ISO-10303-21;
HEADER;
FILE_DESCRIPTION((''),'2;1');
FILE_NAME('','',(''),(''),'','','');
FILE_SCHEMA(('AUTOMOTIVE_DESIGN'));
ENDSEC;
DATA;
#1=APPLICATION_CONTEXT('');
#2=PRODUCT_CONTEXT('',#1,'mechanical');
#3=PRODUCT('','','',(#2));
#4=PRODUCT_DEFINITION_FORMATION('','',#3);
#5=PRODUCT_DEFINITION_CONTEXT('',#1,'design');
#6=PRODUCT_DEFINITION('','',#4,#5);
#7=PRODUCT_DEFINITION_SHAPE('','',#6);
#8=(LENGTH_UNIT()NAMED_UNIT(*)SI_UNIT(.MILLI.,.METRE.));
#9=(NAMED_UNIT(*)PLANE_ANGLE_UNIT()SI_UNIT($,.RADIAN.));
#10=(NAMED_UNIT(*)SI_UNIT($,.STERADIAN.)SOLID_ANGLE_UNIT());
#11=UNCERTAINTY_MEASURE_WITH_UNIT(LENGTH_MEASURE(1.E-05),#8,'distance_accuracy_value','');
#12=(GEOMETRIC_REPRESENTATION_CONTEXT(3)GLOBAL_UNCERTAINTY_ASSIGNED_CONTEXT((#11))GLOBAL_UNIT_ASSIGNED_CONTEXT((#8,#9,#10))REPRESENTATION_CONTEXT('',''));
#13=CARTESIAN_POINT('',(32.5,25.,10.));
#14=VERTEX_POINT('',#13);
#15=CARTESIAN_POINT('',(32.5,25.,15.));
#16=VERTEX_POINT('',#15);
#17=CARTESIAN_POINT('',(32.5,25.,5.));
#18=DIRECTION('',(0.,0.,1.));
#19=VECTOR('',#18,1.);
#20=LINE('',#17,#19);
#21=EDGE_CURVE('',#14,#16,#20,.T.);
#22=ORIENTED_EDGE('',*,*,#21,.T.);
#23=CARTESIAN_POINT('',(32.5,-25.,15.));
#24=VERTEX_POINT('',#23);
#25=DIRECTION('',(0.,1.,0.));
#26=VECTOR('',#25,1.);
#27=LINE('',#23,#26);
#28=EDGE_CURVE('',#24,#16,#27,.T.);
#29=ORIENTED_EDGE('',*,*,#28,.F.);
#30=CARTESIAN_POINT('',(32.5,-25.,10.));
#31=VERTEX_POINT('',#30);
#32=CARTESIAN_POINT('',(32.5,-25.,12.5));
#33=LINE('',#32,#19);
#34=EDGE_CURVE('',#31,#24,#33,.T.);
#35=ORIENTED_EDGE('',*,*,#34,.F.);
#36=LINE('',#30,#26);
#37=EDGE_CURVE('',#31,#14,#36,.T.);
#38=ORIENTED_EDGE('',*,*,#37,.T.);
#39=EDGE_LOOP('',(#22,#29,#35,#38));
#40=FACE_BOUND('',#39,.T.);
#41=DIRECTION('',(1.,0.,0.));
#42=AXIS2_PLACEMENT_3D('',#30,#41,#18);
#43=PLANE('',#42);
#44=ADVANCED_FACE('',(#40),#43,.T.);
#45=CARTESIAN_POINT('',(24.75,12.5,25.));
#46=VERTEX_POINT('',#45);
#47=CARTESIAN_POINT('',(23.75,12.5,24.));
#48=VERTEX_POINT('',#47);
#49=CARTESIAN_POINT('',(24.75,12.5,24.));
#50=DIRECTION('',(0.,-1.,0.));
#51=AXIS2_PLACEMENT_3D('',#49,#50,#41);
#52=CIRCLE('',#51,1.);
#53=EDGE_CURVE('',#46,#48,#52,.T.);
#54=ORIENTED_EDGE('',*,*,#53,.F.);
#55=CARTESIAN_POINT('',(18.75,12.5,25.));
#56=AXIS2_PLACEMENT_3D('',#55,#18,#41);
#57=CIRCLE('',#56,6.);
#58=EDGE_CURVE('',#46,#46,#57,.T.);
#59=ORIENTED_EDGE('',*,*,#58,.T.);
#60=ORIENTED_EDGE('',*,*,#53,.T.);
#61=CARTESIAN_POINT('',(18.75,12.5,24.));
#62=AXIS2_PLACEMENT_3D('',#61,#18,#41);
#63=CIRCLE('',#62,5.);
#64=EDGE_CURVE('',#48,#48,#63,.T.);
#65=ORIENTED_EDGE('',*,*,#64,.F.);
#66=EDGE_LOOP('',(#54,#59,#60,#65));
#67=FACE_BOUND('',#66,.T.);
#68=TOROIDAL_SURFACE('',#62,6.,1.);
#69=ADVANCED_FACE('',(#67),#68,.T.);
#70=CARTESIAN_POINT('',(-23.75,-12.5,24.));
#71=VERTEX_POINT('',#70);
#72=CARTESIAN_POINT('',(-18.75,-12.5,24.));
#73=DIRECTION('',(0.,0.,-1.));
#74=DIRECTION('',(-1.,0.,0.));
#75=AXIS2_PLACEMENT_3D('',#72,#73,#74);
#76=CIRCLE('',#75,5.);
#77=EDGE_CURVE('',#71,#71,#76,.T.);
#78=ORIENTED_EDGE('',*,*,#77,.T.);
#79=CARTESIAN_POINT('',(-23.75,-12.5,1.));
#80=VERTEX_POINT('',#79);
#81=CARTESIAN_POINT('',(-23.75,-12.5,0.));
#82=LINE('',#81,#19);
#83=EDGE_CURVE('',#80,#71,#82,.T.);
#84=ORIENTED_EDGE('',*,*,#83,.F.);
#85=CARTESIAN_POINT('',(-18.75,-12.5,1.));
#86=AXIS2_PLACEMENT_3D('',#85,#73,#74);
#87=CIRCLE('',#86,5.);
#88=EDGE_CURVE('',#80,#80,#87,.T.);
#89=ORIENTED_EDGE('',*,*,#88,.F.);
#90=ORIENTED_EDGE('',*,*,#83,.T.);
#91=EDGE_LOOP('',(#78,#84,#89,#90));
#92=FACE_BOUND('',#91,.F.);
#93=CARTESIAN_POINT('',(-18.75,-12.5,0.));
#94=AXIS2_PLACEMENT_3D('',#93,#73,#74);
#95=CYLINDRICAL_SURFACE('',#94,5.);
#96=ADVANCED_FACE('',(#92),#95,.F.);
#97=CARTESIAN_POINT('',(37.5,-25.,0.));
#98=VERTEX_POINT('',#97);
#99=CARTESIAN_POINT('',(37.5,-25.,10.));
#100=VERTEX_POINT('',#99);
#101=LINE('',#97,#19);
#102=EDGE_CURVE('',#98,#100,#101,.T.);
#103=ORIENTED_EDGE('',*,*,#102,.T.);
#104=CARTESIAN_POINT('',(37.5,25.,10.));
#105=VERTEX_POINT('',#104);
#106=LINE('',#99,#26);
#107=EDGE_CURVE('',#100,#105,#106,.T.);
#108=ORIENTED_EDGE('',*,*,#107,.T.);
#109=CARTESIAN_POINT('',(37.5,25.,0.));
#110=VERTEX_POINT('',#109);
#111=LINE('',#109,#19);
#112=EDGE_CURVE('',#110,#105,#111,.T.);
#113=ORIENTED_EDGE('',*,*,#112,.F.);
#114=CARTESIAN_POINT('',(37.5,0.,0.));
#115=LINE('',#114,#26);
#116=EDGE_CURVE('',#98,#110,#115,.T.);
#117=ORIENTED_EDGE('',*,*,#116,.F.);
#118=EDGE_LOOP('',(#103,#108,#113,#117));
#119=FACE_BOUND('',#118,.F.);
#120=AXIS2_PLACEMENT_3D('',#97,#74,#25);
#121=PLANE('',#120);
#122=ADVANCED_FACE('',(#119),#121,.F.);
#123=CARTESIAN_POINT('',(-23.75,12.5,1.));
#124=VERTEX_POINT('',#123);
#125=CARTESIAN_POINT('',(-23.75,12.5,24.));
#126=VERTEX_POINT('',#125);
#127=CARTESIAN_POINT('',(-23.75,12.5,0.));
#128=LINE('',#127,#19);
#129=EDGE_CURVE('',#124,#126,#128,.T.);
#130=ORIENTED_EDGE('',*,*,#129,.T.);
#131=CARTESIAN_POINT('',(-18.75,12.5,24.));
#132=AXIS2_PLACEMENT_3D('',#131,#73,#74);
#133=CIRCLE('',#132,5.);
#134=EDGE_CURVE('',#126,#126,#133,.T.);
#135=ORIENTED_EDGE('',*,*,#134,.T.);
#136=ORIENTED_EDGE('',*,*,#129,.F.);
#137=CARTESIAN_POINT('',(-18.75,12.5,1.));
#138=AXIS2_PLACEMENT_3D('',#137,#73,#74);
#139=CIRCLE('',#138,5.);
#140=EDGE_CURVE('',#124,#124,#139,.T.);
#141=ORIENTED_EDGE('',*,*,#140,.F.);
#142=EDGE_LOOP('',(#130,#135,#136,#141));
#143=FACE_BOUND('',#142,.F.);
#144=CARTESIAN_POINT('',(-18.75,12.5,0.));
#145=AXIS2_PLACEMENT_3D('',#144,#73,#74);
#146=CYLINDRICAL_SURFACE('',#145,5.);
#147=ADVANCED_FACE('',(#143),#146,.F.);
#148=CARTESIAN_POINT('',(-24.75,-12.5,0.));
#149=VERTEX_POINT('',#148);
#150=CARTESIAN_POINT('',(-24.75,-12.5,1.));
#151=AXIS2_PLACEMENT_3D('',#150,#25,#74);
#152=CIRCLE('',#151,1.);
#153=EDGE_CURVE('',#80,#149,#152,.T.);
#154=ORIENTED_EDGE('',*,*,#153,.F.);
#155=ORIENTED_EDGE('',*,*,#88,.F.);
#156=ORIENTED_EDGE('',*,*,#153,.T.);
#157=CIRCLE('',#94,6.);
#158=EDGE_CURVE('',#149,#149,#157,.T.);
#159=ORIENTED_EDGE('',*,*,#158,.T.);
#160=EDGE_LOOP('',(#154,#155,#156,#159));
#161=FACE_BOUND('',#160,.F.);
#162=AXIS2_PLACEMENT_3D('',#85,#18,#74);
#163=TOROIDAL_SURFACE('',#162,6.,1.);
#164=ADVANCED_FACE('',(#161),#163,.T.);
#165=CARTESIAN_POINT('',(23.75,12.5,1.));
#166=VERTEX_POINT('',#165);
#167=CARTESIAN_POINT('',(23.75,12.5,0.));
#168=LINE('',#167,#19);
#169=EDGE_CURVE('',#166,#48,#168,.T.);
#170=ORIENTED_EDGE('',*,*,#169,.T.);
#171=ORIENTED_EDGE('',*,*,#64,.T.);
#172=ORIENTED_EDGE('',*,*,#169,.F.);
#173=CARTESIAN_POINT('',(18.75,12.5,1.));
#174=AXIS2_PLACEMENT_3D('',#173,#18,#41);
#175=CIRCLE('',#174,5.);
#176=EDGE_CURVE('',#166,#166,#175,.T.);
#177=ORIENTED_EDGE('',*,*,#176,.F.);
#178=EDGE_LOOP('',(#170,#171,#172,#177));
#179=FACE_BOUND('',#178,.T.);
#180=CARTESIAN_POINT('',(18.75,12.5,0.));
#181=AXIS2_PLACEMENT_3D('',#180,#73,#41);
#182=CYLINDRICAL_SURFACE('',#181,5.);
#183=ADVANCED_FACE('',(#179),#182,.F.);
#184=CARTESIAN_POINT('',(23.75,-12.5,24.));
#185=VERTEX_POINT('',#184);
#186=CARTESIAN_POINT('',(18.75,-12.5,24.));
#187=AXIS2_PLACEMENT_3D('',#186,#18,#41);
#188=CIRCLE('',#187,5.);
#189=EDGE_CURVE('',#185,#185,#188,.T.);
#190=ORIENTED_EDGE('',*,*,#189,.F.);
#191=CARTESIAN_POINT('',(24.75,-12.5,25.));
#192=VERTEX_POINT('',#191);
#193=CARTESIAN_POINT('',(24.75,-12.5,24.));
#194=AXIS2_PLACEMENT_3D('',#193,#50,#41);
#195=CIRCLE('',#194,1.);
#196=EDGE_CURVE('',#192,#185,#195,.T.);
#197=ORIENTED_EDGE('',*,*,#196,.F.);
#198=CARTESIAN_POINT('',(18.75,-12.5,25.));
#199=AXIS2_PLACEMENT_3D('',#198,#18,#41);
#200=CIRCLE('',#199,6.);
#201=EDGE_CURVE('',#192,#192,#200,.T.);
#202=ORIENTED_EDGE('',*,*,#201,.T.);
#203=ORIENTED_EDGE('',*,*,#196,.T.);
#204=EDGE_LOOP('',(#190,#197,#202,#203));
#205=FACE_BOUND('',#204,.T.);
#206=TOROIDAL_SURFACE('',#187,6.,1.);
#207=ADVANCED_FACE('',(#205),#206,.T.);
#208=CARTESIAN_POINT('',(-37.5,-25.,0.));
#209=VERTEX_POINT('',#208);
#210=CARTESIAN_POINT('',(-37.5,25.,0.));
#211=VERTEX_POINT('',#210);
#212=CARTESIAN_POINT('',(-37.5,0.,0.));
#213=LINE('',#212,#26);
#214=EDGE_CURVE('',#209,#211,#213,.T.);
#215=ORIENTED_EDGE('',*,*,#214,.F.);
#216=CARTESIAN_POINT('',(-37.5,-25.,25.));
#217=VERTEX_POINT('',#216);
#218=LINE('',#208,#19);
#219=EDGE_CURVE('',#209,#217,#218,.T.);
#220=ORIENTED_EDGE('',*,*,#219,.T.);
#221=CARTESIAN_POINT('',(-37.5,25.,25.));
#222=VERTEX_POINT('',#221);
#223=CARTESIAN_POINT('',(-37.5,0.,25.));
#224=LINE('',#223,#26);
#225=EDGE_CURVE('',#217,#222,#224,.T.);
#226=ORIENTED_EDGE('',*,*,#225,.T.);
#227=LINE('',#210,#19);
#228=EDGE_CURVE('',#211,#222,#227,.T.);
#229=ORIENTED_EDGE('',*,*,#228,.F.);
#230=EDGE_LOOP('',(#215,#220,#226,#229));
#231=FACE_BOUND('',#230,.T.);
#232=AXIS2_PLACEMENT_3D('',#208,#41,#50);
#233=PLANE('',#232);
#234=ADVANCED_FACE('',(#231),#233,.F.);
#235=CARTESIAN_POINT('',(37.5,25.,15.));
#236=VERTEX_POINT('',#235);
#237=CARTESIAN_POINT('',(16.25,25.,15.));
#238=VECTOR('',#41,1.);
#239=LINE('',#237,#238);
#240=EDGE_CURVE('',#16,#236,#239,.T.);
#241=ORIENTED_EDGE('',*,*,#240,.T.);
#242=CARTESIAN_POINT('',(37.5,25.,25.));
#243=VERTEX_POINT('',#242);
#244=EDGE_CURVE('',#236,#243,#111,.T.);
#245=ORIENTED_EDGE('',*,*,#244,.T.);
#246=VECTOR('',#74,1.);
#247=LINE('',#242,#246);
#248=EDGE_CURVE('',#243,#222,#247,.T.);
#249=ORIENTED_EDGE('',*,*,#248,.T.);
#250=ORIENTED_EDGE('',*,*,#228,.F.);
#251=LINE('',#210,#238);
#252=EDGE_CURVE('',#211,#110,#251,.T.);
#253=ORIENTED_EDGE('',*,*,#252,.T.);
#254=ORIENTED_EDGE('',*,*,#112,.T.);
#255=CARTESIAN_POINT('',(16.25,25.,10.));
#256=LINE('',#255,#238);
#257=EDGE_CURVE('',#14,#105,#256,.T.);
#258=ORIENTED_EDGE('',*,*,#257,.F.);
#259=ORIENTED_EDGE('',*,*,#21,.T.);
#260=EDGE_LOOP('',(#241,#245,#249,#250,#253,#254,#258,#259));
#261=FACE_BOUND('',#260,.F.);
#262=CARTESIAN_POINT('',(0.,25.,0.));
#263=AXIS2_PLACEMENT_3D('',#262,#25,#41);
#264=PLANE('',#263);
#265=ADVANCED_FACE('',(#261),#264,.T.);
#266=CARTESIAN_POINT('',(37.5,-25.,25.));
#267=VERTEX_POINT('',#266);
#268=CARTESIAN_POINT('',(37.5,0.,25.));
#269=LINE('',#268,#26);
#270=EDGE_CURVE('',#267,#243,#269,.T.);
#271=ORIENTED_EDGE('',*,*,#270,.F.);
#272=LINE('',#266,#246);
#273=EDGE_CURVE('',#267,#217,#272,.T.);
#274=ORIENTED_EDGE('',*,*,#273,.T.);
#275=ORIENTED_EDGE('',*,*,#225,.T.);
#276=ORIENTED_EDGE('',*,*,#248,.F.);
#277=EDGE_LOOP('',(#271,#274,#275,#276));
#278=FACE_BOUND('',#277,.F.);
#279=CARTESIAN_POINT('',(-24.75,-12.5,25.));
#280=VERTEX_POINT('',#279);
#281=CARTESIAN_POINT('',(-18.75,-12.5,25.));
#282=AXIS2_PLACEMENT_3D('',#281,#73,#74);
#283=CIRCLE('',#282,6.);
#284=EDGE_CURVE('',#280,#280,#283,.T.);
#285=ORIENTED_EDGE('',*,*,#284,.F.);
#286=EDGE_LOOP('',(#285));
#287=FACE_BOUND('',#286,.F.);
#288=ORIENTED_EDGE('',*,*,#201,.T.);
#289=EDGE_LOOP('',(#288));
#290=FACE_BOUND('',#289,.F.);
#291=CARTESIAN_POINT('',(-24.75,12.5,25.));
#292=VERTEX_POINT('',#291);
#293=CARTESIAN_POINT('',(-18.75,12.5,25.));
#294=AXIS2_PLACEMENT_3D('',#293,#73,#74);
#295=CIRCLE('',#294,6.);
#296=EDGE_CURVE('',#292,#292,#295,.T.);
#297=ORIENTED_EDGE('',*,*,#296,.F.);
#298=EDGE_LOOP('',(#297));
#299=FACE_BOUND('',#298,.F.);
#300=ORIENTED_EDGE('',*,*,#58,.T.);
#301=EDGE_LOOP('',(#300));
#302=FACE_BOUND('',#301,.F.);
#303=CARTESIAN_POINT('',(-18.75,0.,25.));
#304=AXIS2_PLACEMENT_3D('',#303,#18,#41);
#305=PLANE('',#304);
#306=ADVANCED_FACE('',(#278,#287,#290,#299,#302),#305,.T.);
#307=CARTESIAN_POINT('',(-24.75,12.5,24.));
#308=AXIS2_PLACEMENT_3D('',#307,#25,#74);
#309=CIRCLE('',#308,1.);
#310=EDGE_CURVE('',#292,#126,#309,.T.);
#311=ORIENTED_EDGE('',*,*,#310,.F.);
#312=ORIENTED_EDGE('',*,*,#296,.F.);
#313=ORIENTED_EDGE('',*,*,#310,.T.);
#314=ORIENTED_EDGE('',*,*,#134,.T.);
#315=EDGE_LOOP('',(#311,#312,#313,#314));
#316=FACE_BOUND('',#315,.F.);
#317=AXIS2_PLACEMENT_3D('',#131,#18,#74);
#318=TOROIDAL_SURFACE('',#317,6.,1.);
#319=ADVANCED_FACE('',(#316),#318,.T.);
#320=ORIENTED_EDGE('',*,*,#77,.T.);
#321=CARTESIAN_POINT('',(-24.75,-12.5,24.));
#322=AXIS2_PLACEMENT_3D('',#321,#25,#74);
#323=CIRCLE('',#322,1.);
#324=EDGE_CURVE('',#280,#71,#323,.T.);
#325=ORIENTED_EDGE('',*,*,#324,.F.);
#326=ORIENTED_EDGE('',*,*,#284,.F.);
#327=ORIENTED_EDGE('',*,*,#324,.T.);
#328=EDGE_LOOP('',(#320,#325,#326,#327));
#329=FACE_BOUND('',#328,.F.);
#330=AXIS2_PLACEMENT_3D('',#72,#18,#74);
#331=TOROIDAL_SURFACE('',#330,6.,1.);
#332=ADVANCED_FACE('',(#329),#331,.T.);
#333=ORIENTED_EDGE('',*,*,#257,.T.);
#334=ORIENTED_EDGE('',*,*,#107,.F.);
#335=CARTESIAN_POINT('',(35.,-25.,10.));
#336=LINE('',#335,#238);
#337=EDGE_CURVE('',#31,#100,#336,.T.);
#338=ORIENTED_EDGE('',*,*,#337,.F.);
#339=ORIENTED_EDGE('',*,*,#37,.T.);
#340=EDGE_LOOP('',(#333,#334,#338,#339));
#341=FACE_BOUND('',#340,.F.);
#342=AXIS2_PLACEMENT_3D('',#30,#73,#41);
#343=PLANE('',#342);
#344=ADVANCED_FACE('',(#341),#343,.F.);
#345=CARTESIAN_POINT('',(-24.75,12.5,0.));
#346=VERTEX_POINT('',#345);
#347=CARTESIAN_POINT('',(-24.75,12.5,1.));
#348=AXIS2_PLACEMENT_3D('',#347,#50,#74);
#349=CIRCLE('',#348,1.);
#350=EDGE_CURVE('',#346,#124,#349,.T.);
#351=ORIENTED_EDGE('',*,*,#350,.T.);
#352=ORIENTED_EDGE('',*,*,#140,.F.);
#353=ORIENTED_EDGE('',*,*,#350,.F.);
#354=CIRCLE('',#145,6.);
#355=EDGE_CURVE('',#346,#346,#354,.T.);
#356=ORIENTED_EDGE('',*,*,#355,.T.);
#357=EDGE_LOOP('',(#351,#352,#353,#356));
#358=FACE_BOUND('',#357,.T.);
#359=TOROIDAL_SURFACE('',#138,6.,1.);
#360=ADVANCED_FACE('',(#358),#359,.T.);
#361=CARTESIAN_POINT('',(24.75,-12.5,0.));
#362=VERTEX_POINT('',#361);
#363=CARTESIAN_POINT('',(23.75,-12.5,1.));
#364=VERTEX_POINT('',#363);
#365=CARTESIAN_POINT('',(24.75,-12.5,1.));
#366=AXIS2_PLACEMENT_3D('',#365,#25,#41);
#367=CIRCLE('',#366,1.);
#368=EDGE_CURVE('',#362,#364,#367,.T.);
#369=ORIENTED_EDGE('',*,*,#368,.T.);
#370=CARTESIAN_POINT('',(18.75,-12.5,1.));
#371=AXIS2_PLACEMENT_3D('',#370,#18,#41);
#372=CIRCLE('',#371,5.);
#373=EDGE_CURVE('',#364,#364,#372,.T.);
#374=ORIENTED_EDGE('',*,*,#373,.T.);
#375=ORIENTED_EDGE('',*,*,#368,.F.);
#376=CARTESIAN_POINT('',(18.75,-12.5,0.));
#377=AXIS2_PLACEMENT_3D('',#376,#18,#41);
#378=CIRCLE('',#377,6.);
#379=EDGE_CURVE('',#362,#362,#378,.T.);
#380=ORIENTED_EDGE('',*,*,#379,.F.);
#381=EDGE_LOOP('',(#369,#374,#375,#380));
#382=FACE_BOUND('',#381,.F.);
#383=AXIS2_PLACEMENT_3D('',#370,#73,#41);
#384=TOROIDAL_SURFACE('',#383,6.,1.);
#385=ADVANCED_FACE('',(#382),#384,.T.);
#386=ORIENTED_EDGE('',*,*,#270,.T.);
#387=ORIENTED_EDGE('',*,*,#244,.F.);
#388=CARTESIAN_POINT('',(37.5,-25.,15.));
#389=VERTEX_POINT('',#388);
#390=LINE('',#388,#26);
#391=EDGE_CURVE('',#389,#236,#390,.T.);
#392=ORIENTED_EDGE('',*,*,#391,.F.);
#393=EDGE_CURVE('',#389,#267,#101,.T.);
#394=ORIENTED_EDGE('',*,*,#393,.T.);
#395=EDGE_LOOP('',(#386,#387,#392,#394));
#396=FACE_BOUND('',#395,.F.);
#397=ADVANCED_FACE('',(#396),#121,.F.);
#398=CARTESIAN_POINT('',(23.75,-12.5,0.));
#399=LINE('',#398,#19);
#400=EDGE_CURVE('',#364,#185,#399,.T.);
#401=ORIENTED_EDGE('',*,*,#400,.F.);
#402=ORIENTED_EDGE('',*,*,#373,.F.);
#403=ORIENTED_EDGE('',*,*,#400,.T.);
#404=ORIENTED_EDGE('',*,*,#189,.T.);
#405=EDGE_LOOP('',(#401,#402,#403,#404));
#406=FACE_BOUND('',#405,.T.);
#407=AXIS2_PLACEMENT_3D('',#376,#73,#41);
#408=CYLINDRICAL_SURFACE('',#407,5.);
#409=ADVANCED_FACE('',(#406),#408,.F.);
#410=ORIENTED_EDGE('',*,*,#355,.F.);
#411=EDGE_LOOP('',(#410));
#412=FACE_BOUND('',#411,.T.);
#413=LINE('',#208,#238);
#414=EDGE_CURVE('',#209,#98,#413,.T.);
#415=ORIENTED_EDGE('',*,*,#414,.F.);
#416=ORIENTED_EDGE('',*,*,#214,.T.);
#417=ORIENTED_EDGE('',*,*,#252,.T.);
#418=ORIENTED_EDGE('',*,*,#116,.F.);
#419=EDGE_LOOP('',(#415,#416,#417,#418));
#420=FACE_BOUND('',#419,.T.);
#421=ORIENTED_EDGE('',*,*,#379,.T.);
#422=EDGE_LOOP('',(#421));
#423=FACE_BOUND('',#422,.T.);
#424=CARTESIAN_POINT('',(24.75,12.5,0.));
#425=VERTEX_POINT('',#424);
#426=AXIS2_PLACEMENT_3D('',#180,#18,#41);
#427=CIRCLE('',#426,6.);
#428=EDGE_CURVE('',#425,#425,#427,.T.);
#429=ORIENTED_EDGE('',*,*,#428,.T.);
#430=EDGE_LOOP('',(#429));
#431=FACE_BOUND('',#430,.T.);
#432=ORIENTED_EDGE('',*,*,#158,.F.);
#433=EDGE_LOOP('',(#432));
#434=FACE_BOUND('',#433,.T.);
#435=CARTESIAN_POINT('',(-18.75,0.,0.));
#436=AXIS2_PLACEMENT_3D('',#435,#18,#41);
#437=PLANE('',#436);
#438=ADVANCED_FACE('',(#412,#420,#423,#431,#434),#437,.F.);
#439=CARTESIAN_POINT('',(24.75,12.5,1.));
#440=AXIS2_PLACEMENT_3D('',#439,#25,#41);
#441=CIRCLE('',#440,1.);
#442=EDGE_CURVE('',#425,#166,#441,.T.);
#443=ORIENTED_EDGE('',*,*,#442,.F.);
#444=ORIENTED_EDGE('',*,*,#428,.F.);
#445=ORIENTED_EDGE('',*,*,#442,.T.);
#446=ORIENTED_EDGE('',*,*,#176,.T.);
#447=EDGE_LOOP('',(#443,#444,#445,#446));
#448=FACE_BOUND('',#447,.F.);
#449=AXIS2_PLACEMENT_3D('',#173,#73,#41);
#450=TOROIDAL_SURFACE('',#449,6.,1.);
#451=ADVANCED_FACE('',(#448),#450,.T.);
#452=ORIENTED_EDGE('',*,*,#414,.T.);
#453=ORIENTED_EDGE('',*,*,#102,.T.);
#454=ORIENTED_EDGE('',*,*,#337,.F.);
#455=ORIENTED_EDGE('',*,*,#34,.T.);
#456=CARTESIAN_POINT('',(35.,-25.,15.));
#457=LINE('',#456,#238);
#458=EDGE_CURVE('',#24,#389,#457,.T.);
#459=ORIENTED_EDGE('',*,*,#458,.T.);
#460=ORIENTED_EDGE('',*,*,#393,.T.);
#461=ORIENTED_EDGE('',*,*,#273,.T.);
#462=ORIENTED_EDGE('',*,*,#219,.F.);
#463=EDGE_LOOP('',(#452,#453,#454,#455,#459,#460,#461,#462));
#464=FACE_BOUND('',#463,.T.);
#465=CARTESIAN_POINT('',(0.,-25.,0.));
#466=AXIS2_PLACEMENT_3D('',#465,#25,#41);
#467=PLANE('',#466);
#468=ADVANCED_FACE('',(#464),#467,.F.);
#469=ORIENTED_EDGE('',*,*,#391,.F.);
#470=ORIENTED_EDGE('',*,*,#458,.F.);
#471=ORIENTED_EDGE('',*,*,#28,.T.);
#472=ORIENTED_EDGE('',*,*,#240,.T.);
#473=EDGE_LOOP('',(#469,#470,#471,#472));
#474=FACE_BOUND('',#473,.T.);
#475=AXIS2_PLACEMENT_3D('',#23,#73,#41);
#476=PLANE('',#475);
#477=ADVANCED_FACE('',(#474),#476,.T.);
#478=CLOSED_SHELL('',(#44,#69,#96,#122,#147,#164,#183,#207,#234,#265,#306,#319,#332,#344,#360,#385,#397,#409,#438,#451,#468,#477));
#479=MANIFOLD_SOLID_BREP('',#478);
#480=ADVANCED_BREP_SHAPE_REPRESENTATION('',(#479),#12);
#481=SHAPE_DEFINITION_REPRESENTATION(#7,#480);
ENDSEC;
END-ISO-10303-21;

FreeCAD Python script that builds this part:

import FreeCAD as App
import Part
import Sketcher
Q = App.Units.Quantity


def edges_at(feature, points):
    """Names of the edges that pass closest to the given points."""
    edges = feature.Shape.Edges
    near = lambda p: min(range(len(edges)), key=lambda i: edges[i].distToShape(Part.Vertex(*p))[0])
    return sorted({f"Edge{near(p) + 1}" for p in points})


def add_polygon(sketch, points):
    """Adds a closed chain of lines whose ends are joined by coincident constraints."""
    first, n = sketch.GeometryCount, len(points)
    for a, b in zip(points, points[1:] + points[:1]):
        sketch.addGeometry(Part.LineSegment(App.Vector(*a, 0), App.Vector(*b, 0)), False)
    for i in range(n):
        sketch.addConstraint(Sketcher.Constraint("Coincident", first + i, 2, first + (i + 1) % n, 1))

doc = App.newDocument("Part")
body = doc.addObject("PartDesign::Body", "Body")

# Sketch on XY plane
sketch1 = body.newObject("Sketcher::SketchObject", "Sketch")
sketch1.AttachmentSupport = (doc.getObject("XY_Plane"), [""])
sketch1.MapMode = "FlatFace"
add_polygon(sketch1, [(0, 25), (0, -25), (38, -25), (38, 25)])  # lines 0-3
sketch1.addGeometry(Part.Circle(App.Vector(19, -12, 0), App.Vector(0, 0, 1), 5), False)  # 4
sketch1.addGeometry(Part.Circle(App.Vector(19, 12, 0), App.Vector(0, 0, 1), 5), False)  # 5
sketch1.addConstraint(Sketcher.Constraint("Vertical", 0))
sketch1.addConstraint(Sketcher.Constraint("Horizontal", 1))
sketch1.addConstraint(Sketcher.Constraint("Vertical", 2))
sketch1.addConstraint(Sketcher.Constraint("Horizontal", 3))
sketch1.addConstraint(Sketcher.Constraint("Equal", 4, 5))
sketch1.addConstraint(Sketcher.Constraint("Symmetric", 0, 2, 3, 2, -1, 1))
sketch1.addConstraint(Sketcher.Constraint("Symmetric", 4, 3, 5, 3, -1))
sketch1.addConstraint(Sketcher.Constraint("Diameter", 4, Q("10 mm")))
sketch1.addConstraint(Sketcher.Constraint("DistanceY", 0, 2, 0, 1, Q("50 mm")))
sketch1.addConstraint(Sketcher.Constraint("DistanceX", 1, 1, 1, 2, Q("37.5 mm")))
sketch1.addConstraint(Sketcher.Constraint("DistanceY", 4, 3, 5, 3, Q("25 mm")))
sketch1.addConstraint(Sketcher.Constraint("DistanceX", -1, 1, 4, 3, Q("18.75 mm")))
pad1 = body.newObject("PartDesign::Pad", "Pad")
pad1.Profile = sketch1
pad1.Length = 25
doc.recompute()

mirrored = body.newObject("PartDesign::Mirrored", "Mirrored")
mirrored.Originals = [pad1]
mirrored.MirrorPlane = (doc.getObject("YZ_Plane"), [""])
body.Tip = mirrored

# Sketch on XZ plane
sketch2 = body.newObject("Sketcher::SketchObject", "Sketch001")
sketch2.AttachmentSupport = (doc.getObject("XZ_Plane"), [""])
sketch2.MapMode = "FlatFace"
sketch2.AttachmentOffset = App.Placement(App.Vector(0, 0, 25), App.Rotation())
add_polygon(sketch2, [(32, 15), (32, 10), (38, 10), (38, 15)])  # lines 0-3
sketch2.addConstraint(Sketcher.Constraint("Vertical", 0))
sketch2.addConstraint(Sketcher.Constraint("Horizontal", 1))
sketch2.addConstraint(Sketcher.Constraint("Vertical", 2))
sketch2.addConstraint(Sketcher.Constraint("Horizontal", 3))
sketch2.addConstraint(Sketcher.Constraint("Equal", 3, 0))
sketch2.addConstraint(Sketcher.Constraint("DistanceX", 1, 1, 1, 2, Q("5 mm")))
sketch2.addConstraint(Sketcher.Constraint("DistanceY", -1, 1, 0, 2, Q("10 mm")))
sketch2.addConstraint(Sketcher.Constraint("DistanceX", -1, 1, 0, 2, Q("32.5 mm")))
pocket1 = body.newObject("PartDesign::Pocket", "Pocket")
pocket1.Profile = sketch2
pocket1.Type = "ThroughAll"
doc.recompute()

fillet = body.newObject("PartDesign::Fillet", "Fillet")
fillet.Base = (pocket1, edges_at(pocket1, [
    (-13.75, -12.5, 25),
    (-13.75, 12.5, 25),
    (13.75, 12.5, 25),
    (13.75, -12.5, 25),
]))
fillet.Radius = 1
doc.recompute()

fillet2 = body.newObject("PartDesign::Fillet", "Fillet001")
fillet2.Base = (fillet, edges_at(fillet, [
    (13.75, -12.5, 0),
    (13.75, 12.5, 0),
    (-13.75, 12.5, 0),
    (-13.75, -12.5, 0),
]))
fillet2.Radius = 1

doc.recompute()
